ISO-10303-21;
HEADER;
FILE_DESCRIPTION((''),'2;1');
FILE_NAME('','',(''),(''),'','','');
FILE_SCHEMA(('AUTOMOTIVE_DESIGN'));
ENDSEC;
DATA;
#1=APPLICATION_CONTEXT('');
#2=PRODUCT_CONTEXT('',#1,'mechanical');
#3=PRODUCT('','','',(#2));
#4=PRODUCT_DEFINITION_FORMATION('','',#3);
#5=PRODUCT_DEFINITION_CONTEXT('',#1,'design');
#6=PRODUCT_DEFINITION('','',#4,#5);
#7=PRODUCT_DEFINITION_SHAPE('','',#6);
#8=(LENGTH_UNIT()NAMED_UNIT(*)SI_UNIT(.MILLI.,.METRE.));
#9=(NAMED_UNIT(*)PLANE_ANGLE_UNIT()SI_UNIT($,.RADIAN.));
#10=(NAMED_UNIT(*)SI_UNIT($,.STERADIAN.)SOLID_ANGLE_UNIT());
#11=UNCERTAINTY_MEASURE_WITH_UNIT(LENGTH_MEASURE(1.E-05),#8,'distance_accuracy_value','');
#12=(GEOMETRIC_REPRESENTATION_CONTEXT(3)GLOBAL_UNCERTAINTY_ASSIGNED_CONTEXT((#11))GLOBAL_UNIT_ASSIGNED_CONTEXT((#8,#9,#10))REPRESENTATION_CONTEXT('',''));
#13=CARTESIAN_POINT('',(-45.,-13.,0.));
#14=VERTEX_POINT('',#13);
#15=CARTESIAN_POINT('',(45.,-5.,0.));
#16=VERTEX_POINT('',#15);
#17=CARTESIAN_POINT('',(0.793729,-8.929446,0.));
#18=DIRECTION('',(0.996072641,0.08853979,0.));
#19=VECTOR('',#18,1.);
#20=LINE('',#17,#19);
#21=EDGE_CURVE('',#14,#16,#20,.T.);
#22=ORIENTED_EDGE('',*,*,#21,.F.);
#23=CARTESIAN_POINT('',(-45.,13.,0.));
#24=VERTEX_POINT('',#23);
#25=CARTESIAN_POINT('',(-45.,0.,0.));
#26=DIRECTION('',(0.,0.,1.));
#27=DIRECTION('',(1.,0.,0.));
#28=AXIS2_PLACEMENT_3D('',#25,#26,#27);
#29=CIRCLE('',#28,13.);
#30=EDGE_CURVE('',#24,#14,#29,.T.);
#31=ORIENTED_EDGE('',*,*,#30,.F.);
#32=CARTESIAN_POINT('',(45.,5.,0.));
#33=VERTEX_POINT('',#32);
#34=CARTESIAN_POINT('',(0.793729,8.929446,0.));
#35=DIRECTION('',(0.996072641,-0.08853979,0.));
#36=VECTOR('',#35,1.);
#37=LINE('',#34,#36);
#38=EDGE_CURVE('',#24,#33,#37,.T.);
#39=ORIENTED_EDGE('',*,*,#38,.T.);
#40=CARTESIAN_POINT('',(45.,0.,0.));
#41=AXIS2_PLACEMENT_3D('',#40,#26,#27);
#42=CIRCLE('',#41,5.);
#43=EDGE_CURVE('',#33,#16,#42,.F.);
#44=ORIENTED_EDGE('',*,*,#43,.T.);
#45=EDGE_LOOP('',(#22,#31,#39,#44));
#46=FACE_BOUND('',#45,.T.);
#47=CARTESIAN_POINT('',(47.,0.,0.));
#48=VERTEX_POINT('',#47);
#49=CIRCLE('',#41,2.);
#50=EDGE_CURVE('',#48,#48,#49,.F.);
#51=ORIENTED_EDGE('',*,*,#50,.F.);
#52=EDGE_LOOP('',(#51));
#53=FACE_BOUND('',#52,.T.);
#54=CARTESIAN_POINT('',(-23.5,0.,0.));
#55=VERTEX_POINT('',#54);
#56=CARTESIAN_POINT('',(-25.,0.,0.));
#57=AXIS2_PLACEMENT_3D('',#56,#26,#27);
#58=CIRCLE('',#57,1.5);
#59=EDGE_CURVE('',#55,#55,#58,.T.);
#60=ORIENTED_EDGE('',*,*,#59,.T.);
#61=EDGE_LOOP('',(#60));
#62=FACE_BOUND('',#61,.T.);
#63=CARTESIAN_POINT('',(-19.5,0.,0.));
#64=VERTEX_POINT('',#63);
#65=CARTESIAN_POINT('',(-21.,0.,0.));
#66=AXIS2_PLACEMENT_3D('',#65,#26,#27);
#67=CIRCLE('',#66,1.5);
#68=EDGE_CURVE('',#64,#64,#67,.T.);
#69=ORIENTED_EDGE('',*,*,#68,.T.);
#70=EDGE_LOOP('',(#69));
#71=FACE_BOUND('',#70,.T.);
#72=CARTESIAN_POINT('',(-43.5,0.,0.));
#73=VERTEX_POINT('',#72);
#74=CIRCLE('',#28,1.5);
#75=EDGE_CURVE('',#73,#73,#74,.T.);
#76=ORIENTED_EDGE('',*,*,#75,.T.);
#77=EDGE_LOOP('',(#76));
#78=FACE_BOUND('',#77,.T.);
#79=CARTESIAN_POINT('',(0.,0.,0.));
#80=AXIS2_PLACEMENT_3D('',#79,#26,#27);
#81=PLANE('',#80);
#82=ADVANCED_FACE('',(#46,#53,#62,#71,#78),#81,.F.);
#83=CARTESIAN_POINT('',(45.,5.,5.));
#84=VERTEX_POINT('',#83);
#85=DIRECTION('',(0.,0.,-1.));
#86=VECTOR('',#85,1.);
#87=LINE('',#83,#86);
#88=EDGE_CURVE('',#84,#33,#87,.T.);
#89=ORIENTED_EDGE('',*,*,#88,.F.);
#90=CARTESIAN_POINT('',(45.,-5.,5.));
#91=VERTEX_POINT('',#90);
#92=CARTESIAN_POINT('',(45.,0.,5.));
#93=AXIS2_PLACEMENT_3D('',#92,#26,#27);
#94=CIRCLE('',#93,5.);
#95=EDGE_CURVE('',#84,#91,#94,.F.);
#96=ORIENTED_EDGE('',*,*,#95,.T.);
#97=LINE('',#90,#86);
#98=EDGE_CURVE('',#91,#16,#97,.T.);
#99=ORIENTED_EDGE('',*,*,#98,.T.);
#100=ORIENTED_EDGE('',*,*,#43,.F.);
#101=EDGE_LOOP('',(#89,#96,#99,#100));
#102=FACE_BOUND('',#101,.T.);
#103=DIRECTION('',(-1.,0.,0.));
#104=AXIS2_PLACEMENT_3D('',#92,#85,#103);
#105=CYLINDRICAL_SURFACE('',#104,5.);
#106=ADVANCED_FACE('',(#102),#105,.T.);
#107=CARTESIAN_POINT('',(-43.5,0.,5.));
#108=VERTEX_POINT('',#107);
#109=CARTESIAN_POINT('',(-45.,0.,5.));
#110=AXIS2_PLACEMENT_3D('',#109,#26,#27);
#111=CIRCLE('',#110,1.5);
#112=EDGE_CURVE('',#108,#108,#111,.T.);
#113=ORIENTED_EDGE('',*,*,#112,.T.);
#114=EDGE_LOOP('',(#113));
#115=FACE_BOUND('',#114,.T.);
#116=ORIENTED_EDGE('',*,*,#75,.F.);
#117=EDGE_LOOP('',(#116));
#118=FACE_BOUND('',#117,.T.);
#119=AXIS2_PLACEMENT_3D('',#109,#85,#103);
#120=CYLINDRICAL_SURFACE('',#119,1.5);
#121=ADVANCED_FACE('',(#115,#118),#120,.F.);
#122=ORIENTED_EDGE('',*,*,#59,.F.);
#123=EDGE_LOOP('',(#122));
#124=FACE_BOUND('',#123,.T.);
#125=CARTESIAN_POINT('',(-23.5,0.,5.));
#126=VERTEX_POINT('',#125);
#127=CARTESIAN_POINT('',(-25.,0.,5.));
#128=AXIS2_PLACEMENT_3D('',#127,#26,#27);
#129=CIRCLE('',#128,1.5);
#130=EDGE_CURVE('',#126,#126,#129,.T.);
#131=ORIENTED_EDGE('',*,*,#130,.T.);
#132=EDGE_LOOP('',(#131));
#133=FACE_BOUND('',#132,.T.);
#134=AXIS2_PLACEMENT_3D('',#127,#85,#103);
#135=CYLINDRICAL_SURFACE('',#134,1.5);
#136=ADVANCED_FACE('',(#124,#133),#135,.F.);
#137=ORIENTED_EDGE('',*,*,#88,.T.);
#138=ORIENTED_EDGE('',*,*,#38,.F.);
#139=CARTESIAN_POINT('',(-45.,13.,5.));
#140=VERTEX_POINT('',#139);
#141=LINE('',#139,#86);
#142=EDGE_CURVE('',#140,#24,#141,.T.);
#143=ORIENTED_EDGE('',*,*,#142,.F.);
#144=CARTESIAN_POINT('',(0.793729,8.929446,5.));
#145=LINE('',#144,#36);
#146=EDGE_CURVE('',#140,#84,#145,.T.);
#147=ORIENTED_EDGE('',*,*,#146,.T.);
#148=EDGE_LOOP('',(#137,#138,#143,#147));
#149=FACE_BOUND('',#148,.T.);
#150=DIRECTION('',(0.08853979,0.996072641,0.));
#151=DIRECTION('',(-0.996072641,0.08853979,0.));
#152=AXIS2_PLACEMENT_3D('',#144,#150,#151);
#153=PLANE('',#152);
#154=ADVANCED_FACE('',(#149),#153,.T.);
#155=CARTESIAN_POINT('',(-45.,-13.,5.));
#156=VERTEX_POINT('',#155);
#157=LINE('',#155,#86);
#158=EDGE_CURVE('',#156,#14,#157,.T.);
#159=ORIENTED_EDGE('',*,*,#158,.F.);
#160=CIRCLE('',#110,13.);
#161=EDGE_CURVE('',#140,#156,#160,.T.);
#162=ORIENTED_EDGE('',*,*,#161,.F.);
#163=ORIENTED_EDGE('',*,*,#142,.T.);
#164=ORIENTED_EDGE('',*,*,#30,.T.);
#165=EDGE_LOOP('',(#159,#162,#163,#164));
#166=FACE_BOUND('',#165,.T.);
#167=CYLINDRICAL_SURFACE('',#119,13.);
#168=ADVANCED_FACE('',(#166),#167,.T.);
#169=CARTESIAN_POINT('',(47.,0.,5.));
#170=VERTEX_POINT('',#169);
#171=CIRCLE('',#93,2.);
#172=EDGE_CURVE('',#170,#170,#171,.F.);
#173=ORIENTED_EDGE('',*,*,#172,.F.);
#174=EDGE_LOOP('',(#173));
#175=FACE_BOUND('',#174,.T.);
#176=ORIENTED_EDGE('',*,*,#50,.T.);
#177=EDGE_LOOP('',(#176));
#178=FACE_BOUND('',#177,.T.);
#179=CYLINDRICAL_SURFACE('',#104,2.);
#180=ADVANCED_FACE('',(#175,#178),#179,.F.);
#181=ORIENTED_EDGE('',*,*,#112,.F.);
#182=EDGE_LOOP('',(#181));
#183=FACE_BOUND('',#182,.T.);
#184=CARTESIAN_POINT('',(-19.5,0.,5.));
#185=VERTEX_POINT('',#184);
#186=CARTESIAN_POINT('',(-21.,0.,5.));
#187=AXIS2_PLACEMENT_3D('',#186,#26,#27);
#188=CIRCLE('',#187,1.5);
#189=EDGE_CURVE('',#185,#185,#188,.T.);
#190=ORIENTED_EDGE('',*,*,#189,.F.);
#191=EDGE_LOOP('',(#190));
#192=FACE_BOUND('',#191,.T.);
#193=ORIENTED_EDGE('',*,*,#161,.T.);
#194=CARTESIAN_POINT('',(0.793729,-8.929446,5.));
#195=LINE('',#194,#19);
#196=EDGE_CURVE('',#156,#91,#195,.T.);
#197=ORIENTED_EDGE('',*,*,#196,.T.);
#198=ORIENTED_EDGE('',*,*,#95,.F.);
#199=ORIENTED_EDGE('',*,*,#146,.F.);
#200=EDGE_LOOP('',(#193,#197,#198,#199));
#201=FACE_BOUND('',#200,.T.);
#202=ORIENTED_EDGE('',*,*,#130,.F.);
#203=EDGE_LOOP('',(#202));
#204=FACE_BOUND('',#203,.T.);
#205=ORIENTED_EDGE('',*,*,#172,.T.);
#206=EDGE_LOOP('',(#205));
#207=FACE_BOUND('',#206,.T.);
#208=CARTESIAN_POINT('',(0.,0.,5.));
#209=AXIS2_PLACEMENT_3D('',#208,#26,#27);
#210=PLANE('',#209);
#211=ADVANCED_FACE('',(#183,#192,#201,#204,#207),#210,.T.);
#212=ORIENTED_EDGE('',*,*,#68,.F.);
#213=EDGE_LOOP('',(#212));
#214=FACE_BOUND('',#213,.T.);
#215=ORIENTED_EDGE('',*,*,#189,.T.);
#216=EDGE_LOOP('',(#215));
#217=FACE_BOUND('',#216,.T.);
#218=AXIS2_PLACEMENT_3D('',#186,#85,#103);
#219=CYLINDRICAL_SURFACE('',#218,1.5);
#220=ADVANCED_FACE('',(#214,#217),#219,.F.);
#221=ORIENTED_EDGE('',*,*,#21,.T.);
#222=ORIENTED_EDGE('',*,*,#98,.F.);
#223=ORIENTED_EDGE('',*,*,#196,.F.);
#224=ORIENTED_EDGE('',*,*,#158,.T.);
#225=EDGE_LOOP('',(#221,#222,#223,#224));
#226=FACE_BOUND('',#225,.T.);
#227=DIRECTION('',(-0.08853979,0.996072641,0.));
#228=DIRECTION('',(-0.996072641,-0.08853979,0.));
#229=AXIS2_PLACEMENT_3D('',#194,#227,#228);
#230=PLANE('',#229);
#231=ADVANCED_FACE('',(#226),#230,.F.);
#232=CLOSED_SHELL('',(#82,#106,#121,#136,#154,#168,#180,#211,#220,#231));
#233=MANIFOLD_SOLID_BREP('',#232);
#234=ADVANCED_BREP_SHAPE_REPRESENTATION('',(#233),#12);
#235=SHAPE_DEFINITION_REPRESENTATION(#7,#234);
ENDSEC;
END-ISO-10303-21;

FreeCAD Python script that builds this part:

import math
import FreeCAD as App
import Part
import Sketcher
Q = App.Units.Quantity

doc = App.newDocument("Part")
body = doc.addObject("PartDesign::Body", "Body")

# Sketch on XY plane
sketch1 = body.newObject("Sketcher::SketchObject", "Sketch")
sketch1.AttachmentSupport = (doc.getObject("XY_Plane"), [""])
sketch1.MapMode = "FlatFace"
sketch1.addGeometry([
    Part.LineSegment(App.Vector(45, 5, 0), App.Vector(-45, 13, 0)),  # 0
    Part.ArcOfCircle(Part.Circle(App.Vector(-45, 0, 0), App.Vector(0, 0, 1), 13), math.radians(90), math.radians(270)),  # 1
    Part.LineSegment(App.Vector(-45, -13, 0), App.Vector(45, -5, 0)),  # 2
    Part.ArcOfCircle(Part.Circle(App.Vector(45, 0, 0), App.Vector(0, 0, 1), 5), math.radians(-90), math.radians(90)),  # 3
    Part.Circle(App.Vector(45, 0, 0), App.Vector(0, 0, 1), 2),  # 4
    Part.Circle(App.Vector(-21, 0, 0), App.Vector(0, 0, 1), 1.5),  # 5
    Part.Circle(App.Vector(-25, 0, 0), App.Vector(0, 0, 1), 1.5),  # 6
    Part.Circle(App.Vector(-45, 0, 0), App.Vector(0, 0, 1), 1.5),  # 7
], False)
sketch1.addConstraint([
    Sketcher.Constraint("Coincident", 0, 2, 1, 1),
    Sketcher.Constraint("Coincident", 1, 2, 2, 1),
    Sketcher.Constraint("Coincident", 2, 2, 3, 1),
    Sketcher.Constraint("Coincident", 3, 2, 0, 1),
    Sketcher.Constraint("Coincident", 4, 3, 3, 3),
    Sketcher.Constraint("Coincident", 7, 3, 1, 3),
    Sketcher.Constraint("Equal", 5, 6),
    Sketcher.Constraint("Equal", 6, 7),
    Sketcher.Constraint("Symmetric", 1, 3, 3, 3, -1, 1),
    Sketcher.Constraint("Symmetric", 0, 2, 1, 2, -1),
    Sketcher.Constraint("PointOnObject", 5, 3, -1),
    Sketcher.Constraint("PointOnObject", 6, 3, -1),
    Sketcher.Constraint("Vertical", 7, 3, 0, 2),
    Sketcher.Constraint("Vertical", 4, 3, 2, 2),
    Sketcher.Constraint("Vertical", 2, 2, 3, 2),
    Sketcher.Constraint("Diameter", 4, Q("4 mm")),
    Sketcher.Constraint("Diameter", 5, Q("3 mm")),
    Sketcher.Constraint("Radius", 1, Q("13 mm")),
    Sketcher.Constraint("Radius", 3, Q("5 mm")),
    Sketcher.Constraint("DistanceX", 1, 3, -1, 1, Q("45 mm")),
    Sketcher.Constraint("DistanceX", 5, 3, -1, 1, Q("21 mm")),
    Sketcher.Constraint("DistanceX", 6, 3, -1, 1, Q("25 mm")),
])
pad1 = body.newObject("PartDesign::Pad", "Pad")
pad1.Profile = sketch1
pad1.Length = 5

doc.recompute()
